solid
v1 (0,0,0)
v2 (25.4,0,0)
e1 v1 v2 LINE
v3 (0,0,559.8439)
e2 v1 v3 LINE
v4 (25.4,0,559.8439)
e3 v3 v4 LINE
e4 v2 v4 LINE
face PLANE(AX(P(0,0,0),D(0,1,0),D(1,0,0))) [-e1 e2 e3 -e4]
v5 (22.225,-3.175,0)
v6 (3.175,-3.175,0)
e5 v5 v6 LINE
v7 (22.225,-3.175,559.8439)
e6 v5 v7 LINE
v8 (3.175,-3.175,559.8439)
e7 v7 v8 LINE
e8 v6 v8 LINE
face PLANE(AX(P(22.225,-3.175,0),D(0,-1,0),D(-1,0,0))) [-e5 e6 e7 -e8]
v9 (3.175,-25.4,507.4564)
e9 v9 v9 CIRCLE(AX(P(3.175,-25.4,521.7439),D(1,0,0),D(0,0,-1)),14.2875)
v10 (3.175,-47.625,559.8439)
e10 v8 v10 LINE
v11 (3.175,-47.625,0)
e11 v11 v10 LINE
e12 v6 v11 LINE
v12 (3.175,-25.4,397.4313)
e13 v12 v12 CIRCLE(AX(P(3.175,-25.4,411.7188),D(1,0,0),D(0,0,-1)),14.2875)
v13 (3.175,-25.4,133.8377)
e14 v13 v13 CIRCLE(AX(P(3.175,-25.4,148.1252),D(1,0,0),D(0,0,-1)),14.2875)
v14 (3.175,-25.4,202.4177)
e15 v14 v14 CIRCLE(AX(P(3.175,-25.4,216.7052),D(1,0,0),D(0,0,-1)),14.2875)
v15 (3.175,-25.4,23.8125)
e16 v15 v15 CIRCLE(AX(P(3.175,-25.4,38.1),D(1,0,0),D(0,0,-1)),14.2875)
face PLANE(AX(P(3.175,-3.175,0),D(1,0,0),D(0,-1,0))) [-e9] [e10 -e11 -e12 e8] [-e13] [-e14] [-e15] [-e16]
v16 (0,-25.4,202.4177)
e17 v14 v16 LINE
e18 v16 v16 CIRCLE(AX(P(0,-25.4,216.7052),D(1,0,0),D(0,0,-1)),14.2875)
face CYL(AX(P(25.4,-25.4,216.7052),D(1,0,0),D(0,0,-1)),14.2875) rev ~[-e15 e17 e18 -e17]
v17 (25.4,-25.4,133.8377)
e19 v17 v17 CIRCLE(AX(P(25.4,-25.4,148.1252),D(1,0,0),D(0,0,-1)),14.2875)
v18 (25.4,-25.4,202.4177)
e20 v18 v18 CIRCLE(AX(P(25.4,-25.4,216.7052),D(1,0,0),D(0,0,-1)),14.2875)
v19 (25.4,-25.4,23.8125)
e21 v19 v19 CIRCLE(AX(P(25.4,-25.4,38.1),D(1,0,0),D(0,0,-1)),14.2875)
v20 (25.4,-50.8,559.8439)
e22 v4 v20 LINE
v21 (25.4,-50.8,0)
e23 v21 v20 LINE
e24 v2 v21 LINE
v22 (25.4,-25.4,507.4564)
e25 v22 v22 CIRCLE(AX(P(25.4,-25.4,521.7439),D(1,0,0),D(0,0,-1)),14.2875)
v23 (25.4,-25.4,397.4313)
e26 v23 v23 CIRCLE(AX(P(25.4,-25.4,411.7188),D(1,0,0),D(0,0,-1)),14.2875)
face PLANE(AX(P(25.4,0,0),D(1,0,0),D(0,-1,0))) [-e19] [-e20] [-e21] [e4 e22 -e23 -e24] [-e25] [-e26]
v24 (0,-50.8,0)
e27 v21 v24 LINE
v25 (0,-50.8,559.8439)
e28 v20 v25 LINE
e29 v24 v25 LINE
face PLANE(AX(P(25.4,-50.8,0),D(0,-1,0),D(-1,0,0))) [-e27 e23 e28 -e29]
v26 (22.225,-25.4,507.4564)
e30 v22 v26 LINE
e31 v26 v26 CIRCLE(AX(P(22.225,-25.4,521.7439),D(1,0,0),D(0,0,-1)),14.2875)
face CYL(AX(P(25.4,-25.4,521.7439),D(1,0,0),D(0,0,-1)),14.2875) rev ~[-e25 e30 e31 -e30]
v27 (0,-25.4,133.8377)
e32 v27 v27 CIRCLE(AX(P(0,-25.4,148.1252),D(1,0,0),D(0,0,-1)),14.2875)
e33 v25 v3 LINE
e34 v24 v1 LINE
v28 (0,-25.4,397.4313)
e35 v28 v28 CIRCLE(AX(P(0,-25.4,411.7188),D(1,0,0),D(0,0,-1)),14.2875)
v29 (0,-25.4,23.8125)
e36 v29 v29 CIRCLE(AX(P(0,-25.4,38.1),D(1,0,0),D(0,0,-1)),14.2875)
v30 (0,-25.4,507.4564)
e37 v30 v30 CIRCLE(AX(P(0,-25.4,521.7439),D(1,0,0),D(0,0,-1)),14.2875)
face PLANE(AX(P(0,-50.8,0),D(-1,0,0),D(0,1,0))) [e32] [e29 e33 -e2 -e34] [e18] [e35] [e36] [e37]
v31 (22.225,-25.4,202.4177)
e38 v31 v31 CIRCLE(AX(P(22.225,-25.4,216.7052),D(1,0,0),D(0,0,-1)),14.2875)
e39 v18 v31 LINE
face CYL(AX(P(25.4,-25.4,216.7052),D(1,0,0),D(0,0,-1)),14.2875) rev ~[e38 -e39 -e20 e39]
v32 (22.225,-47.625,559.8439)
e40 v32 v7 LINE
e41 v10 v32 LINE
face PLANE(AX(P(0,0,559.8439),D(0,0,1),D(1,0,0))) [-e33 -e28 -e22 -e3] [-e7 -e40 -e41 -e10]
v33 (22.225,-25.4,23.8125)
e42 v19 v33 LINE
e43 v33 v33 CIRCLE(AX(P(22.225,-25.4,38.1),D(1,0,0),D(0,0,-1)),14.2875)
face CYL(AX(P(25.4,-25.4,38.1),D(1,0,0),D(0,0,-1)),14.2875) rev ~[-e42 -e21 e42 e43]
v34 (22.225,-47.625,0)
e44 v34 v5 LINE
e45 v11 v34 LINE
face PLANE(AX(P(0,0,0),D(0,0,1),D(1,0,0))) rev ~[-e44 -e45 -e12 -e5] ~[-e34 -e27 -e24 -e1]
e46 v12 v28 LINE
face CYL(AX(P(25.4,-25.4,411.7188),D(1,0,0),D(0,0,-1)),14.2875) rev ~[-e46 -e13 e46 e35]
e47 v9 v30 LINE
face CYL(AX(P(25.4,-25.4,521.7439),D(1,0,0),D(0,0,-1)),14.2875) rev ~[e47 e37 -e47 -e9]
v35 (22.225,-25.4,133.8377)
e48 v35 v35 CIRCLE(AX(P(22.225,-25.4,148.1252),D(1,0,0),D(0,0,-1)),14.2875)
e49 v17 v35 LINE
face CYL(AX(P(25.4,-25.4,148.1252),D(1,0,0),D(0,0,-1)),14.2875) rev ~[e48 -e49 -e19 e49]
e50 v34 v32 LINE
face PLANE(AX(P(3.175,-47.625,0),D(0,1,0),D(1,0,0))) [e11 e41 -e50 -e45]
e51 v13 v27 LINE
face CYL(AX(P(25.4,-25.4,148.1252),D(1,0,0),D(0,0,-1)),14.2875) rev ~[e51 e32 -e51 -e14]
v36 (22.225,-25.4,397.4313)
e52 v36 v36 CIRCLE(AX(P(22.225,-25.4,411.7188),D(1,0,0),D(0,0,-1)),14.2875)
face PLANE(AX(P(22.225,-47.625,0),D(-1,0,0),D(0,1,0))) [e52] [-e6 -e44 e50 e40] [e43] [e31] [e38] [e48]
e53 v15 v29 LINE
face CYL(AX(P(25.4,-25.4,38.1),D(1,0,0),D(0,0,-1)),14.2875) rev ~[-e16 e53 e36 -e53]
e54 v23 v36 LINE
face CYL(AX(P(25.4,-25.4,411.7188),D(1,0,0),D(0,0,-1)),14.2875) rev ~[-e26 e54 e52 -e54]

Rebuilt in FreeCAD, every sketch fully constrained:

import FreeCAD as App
import Part
import Sketcher

V = App.Vector
Q = App.Units.Quantity


def add_polygon(sketch, points):
    """Adds a closed chain of lines whose ends are joined by coincident constraints."""
    first, n = sketch.GeometryCount, len(points)
    for a, b in zip(points, points[1:] + points[:1]):
        sketch.addGeometry(Part.LineSegment(App.Vector(*a, 0), App.Vector(*b, 0)), False)
    for i in range(n):
        sketch.addConstraint(Sketcher.Constraint("Coincident", first + i, 2, first + (i + 1) % n, 1))

doc = App.newDocument("Part")
body = doc.addObject("PartDesign::Body", "Body")

# Sketch on XY plane
sketch1 = body.newObject("Sketcher::SketchObject", "Sketch")
sketch1.AttachmentSupport = (doc.getObject("XY_Plane"), [""])
sketch1.MapMode = "FlatFace"
add_polygon(sketch1, [(25, 0), (0, 0), (0, -51), (25, -51)])  # lines 0-3
add_polygon(sketch1, [(3, -3), (22, -3), (22, -48), (3, -48)])  # lines 4-7
sketch1.addConstraint(Sketcher.Constraint("Horizontal", 0))
sketch1.addConstraint(Sketcher.Constraint("Vertical", 1))
sketch1.addConstraint(Sketcher.Constraint("Horizontal", 2))
sketch1.addConstraint(Sketcher.Constraint("Vertical", 3))
sketch1.addConstraint(Sketcher.Constraint("Horizontal", 4))
sketch1.addConstraint(Sketcher.Constraint("Vertical", 5))
sketch1.addConstraint(Sketcher.Constraint("Horizontal", 6))
sketch1.addConstraint(Sketcher.Constraint("Vertical", 7))
sketch1.addConstraint(Sketcher.Constraint("Coincident", 0, 2, -1, 1))
sketch1.addConstraint(Sketcher.Constraint("DistanceX", 0, 2, 0, 1, Q("1 in")))
sketch1.addConstraint(Sketcher.Constraint("DistanceY", 1, 2, 1, 1, Q("2 in")))
sketch1.addConstraint(Sketcher.Constraint("DistanceY", 4, 2, -1, 1, Q("0.125 in")))
sketch1.addConstraint(Sketcher.Constraint("DistanceX", -1, 1, 6, 2, Q("0.125 in")))
sketch1.addConstraint(Sketcher.Constraint("DistanceX", 4, 2, 3, 2, Q("0.125 in")))
sketch1.addConstraint(Sketcher.Constraint("DistanceY", 2, 2, 5, 2, Q("0.125 in")))
pad1 = body.newObject("PartDesign::Pad", "Pad")
pad1.Profile = sketch1
pad1.Length = Q("22.0410984 in")

# Sketch on YZ plane
sketch2 = body.newObject("Sketcher::SketchObject", "Sketch001")
sketch2.AttachmentSupport = (doc.getObject("YZ_Plane"), [""])
sketch2.MapMode = "FlatFace"
sketch2.AttachmentOffset = App.Placement(V(0, 0, 1 * 25.4), App.Rotation())
sketch2.addGeometry(Part.Circle(V(-25, 38, 0), V(0, 0, 1), 14), False)
sketch2.addGeometry(Part.Circle(V(-25, 148, 0), V(0, 0, 1), 14), False)
sketch2.addConstraint(Sketcher.Constraint("Equal", 0, 1))
sketch2.addConstraint(Sketcher.Constraint("Vertical", 0, 3, 1, 3))
sketch2.addConstraint(Sketcher.Constraint("Diameter", 0, Q("1.125 in")))
sketch2.addConstraint(Sketcher.Constraint("DistanceX", 0, 3, -1, 1, Q("1 in")))
sketch2.addConstraint(Sketcher.Constraint("DistanceY", -1, 1, 0, 3, Q("1.5 in")))
sketch2.addConstraint(Sketcher.Constraint("DistanceY", 0, 3, 1, 3, Q("4.3317 in")))
pocket1 = body.newObject("PartDesign::Pocket", "Pocket")
pocket1.Profile = sketch2
pocket1.Length = Q("10 in")

# Sketch on YZ plane
sketch3 = body.newObject("Sketcher::SketchObject", "Sketch002")
sketch3.AttachmentSupport = (doc.getObject("YZ_Plane"), [""])
sketch3.MapMode = "FlatFace"
sketch3.AttachmentOffset = App.Placement(V(0, 0, 1 * 25.4), App.Rotation())
sketch3.addGeometry(Part.Circle(V(-25, 522, 0), V(0, 0, 1), 14), False)
sketch3.addGeometry(Part.Circle(V(-25, 412, 0), V(0, 0, 1), 14), False)
sketch3.addConstraint(Sketcher.Constraint("Equal", 0, 1))
sketch3.addConstraint(Sketcher.Constraint("Vertical", 0, 3, 1, 3))
sketch3.addConstraint(Sketcher.Constraint("Diameter", 0, Q("1.125 in")))
sketch3.addConstraint(Sketcher.Constraint("DistanceX", 0, 3, -1, 1, Q("1 in")))
sketch3.addConstraint(Sketcher.Constraint("DistanceY", 1, 3, 0, 3, Q("4.3317 in")))
sketch3.addConstraint(Sketcher.Constraint("DistanceY", -1, 1, 0, 3, Q("20.5411 in")))
pocket2 = body.newObject("PartDesign::Pocket", "Pocket001")
pocket2.Profile = sketch3
pocket2.Length = Q("1 in")

# Sketch on YZ plane
sketch4 = body.newObject("Sketcher::SketchObject", "Sketch003")
sketch4.AttachmentSupport = (doc.getObject("YZ_Plane"), [""])
sketch4.MapMode = "FlatFace"
sketch4.AttachmentOffset = App.Placement(V(0, 0, 1 * 25.4), App.Rotation())
sketch4.addGeometry(Part.Circle(V(-25, 217, 0), V(0, 0, 1), 14), False)
sketch4.addConstraint(Sketcher.Constraint("Diameter", 0, Q("1.125 in")))
sketch4.addConstraint(Sketcher.Constraint("DistanceX", 0, 3, -1, 1, Q("1 in")))
sketch4.addConstraint(Sketcher.Constraint("DistanceY", -1, 1, 0, 3, Q("8.5317 in")))
pocket3 = body.newObject("PartDesign::Pocket", "Pocket002")
pocket3.Profile = sketch4
pocket3.Length = Q("1 in")

doc.recompute()
